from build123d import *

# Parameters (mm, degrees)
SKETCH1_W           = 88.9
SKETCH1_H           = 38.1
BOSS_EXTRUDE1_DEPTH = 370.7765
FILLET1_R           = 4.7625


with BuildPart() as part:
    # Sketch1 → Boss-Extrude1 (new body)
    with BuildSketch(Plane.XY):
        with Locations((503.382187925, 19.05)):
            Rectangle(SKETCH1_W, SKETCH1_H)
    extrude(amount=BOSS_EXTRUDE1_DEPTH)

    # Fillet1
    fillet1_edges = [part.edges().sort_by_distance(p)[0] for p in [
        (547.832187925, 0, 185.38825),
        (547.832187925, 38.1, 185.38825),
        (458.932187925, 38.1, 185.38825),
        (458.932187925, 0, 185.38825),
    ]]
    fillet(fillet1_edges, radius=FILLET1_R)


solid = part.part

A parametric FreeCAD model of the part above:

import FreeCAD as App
import Part
import Sketcher
Q = App.Units.Quantity


def edges_at(feature, points):
    """Names of the edges that pass closest to the given points."""
    edges = feature.Shape.Edges
    near = lambda p: min(range(len(edges)), key=lambda i: edges[i].distToShape(Part.Vertex(*p))[0])
    return sorted({f"Edge{near(p) + 1}" for p in points})

doc = App.newDocument("Part")
body = doc.addObject("PartDesign::Body", "Body")

sketch1 = body.newObject("Sketcher::SketchObject", "Sketch")
sketch1.AttachmentSupport = (doc.getObject("XY_Plane"), [""])
sketch1.MapMode = "FlatFace"
sketch1.addGeometry(Part.LineSegment(App.Vector(459, 38, 0), App.Vector(459, 0, 0)), False)
sketch1.addGeometry(Part.LineSegment(App.Vector(459, 0, 0), App.Vector(548, 0, 0)), False)
sketch1.addGeometry(Part.LineSegment(App.Vector(548, 0, 0), App.Vector(548, 38, 0)), False)
sketch1.addGeometry(Part.LineSegment(App.Vector(548, 38, 0), App.Vector(459, 38, 0)), False)
sketch1.addConstraint(Sketcher.Constraint("Coincident", 0, 2, 1, 1))
sketch1.addConstraint(Sketcher.Constraint("Coincident", 1, 2, 2, 1))
sketch1.addConstraint(Sketcher.Constraint("Coincident", 2, 2, 3, 1))
sketch1.addConstraint(Sketcher.Constraint("Coincident", 3, 2, 0, 1))
sketch1.addConstraint(Sketcher.Constraint("Vertical", 0))
sketch1.addConstraint(Sketcher.Constraint("Horizontal", 1))
sketch1.addConstraint(Sketcher.Constraint("Vertical", 2))
sketch1.addConstraint(Sketcher.Constraint("Horizontal", 3))
sketch1.addConstraint(Sketcher.Constraint("PointOnObject", 0, 2, -1))
sketch1.addConstraint(Sketcher.Constraint("DistanceX", 1, 1, 1, 2, Q("3.5 in")))
sketch1.addConstraint(Sketcher.Constraint("DistanceY", 0, 2, 0, 1, Q("1.5 in")))
sketch1.addConstraint(Sketcher.Constraint("DistanceX", -1, 1, 0, 2, 458.932188))
pad1 = body.newObject("PartDesign::Pad", "Pad")
pad1.Profile = sketch1
pad1.Length = Q("14.5975 in")
doc.recompute()

fillet = body.newObject("PartDesign::Fillet", "Fillet")
fillet.Base = (pad1, edges_at(pad1, [
    (547.832, 0, 185.388),
    (547.832, 38.1, 185.388),
    (458.932, 38.1, 185.388),
    (458.932, 0, 185.388),
]))
fillet.Radius = Q("0.1875 in")

doc.recompute()
